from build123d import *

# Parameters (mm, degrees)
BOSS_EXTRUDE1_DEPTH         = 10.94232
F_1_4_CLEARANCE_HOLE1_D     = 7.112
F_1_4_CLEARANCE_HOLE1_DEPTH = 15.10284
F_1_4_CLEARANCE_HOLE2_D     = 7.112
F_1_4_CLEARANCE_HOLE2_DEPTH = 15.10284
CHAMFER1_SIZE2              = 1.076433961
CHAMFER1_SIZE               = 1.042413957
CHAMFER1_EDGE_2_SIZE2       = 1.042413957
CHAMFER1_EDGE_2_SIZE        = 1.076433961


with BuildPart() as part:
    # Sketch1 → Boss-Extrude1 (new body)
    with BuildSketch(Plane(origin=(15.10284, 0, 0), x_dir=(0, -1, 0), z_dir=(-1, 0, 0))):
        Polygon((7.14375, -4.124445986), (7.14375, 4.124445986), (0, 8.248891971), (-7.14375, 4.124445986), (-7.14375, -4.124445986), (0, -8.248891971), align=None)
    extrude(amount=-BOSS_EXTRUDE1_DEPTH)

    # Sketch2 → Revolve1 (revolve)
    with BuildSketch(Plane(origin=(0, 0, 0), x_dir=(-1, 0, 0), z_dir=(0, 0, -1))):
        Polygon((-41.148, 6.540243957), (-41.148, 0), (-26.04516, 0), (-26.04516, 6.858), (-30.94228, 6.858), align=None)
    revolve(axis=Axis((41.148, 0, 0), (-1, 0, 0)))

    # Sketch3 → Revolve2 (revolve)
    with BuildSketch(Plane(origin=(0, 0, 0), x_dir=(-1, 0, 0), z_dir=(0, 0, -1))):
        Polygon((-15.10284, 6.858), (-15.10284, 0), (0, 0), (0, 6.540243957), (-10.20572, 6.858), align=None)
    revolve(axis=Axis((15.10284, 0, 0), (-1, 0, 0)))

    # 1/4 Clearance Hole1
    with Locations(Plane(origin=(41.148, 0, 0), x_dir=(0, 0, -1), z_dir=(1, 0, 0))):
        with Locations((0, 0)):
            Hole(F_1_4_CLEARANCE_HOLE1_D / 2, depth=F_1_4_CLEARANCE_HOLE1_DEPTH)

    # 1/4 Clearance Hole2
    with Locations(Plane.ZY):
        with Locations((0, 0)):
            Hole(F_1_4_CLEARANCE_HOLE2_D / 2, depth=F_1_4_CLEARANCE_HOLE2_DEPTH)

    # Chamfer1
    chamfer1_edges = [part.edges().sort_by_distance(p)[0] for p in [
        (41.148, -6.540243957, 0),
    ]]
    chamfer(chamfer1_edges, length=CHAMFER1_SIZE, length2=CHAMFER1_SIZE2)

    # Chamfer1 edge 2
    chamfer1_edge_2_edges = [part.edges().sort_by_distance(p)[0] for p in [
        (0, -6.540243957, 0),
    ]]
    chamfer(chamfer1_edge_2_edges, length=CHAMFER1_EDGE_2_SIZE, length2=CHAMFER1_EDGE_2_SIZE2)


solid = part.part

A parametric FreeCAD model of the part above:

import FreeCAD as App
import Part
import Sketcher
from FreeCAD import Vector
Q = App.Units.Quantity


def edges_at(feature, points):
    """Names of the edges that pass closest to the given points."""
    edges = feature.Shape.Edges
    near = lambda p: min(range(len(edges)), key=lambda i: edges[i].distToShape(Part.Vertex(*p))[0])
    return sorted({f"Edge{near(p) + 1}" for p in points})

doc = App.newDocument("Part")
params = doc.addObject("Spreadsheet::Sheet", "Params")
for row, (alias, value) in enumerate([
    ("pad1_length", "0.4308 in"),
    ("sketch2_height", "0.27 in"),
    ("revolution_angle", "360 deg"),
    ("sketch3_height", "0.27 in"),
    ("revolution2_angle", "360 deg"),
    ("sketch4_diameter", "0.28 in"),
    ("hole_diameter", "0.28 in"),
    ("hole_depth", "0.5946 in"),
    ("sketch5_diameter", "0.28 in"),
    ("hole2_diameter", "0.28 in"),
    ("hole2_depth", "0.5946 in"),
    ("chamfer_size", "1.042414 mm"),
    ("chamfer_size2", "1.076434 mm"),
    ("chamfer2_size", "1.076434 mm"),
    ("chamfer2_size2", "1.042414 mm"),
], start=1):
    params.set(f"A{row}", alias)
    params.set(f"B{row}", "=" + value)
    params.setAlias(f"B{row}", alias)

body = doc.addObject("PartDesign::Body", "Body")

# Sketch on YZ plane
sketch1 = doc.addObject("Sketcher::SketchObject", "Sketch")
body.addObject(sketch1)
sketch1.AttachmentSupport = (doc.YZ_Plane, [""])
sketch1.MapMode = "FlatFace"
sketch1.AttachmentOffset = App.Placement(Vector(0, 0, 0.5946 * 25.4), App.Rotation())
sketch1.addGeometry([
    Part.LineSegment(Vector(-7, -4, 0), Vector(-7, 4, 0)),  # 0
    Part.LineSegment(Vector(-7, 4, 0), Vector(0, 8, 0)),  # 1
    Part.LineSegment(Vector(0, 8, 0), Vector(7, 4, 0)),  # 2
    Part.LineSegment(Vector(7, 4, 0), Vector(7, -4, 0)),  # 3
    Part.LineSegment(Vector(7, -4, 0), Vector(0, -8, 0)),  # 4
    Part.LineSegment(Vector(0, -8, 0), Vector(-7, -4, 0)),  # 5
], False)
sketch1.addConstraint([
    Sketcher.Constraint("Coincident", 0, 2, 1, 1),
    Sketcher.Constraint("Coincident", 1, 2, 2, 1),
    Sketcher.Constraint("Coincident", 2, 2, 3, 1),
    Sketcher.Constraint("Coincident", 3, 2, 4, 1),
    Sketcher.Constraint("Coincident", 4, 2, 5, 1),
    Sketcher.Constraint("Coincident", 5, 2, 0, 1),
    Sketcher.Constraint("Vertical", 0),
    Sketcher.Constraint("Vertical", 3),
    Sketcher.Constraint("Symmetric", 0, 2, 3, 2, -1, 1),
    Sketcher.Constraint("Symmetric", 1, 2, 4, 2, -1, 1),
    Sketcher.Constraint("PointOnObject", 1, 2, -2),
    Sketcher.Constraint("Parallel", 2, 5),
    Sketcher.Constraint("Horizontal", 0, 2, 2, 2),
    Sketcher.Constraint("Angle", 1, Q("30 deg")),
    Sketcher.Constraint("DistanceX", 0, 2, -1, 1, Q("0.28125 in")),
    Sketcher.Constraint("DistanceY", 0, 1, 0, 2, 8.248892),
])
pad1 = doc.addObject("PartDesign::Pad", "Pad")
body.addObject(pad1)
pad1.Profile = sketch1
pad1.setExpression("Length", "Params.pad1_length")

# Sketch on XY plane
sketch2 = doc.addObject("Sketcher::SketchObject", "Sketch001")
body.addObject(sketch2)
sketch2.AttachmentSupport = (doc.XY_Plane, [""])
sketch2.MapMode = "FlatFace"
sketch2.addGeometry([
    Part.LineSegment(Vector(41.1, 6.5, 0), Vector(41.1, 0, 0)),  # 0
    Part.LineSegment(Vector(41.1, 0, 0), Vector(26, 0, 0)),  # 1
    Part.LineSegment(Vector(26, 0, 0), Vector(26, 6.9, 0)),  # 2
    Part.LineSegment(Vector(26, 6.9, 0), Vector(30.9, 6.9, 0)),  # 3
    Part.LineSegment(Vector(30.9, 6.9, 0), Vector(41.1, 6.5, 0)),  # 4
], False)
sketch2.addConstraint([
    Sketcher.Constraint("Coincident", 0, 2, 1, 1),
    Sketcher.Constraint("Coincident", 1, 2, 2, 1),
    Sketcher.Constraint("Coincident", 2, 2, 3, 1),
    Sketcher.Constraint("Coincident", 3, 2, 4, 1),
    Sketcher.Constraint("Coincident", 4, 2, 0, 1),
    Sketcher.Constraint("Vertical", 0),
    Sketcher.Constraint("Horizontal", 1),
    Sketcher.Constraint("Vertical", 2),
    Sketcher.Constraint("Horizontal", 3),
    Sketcher.Constraint("PointOnObject", 0, 2, -1),
    Sketcher.Constraint("DistanceY", 2, 1, 2, 2, Q("0.27 in")),
    Sketcher.Constraint("DistanceX", -1, 1, 0, 2, Q("1.62 in")),
    Sketcher.Constraint("DistanceX", 1, 2, 1, 1, Q("0.5946 in")),
    Sketcher.Constraint("DistanceX", 3, 1, 3, 2, Q("0.1928 in")),
    Sketcher.Constraint("DistanceY", 0, 2, 0, 1, 6.540244),
])
sketch2.setExpression("Constraints[10]", "Params.sketch2_height")
revolution = doc.addObject("PartDesign::Revolution", "Revolution")
body.addObject(revolution)
revolution.Profile = sketch2
revolution.ReferenceAxis = (sketch2, ["H_Axis"])
revolution.setExpression("Angle", "Params.revolution_angle")

# Sketch on XY plane
sketch3 = doc.addObject("Sketcher::SketchObject", "Sketch002")
body.addObject(sketch3)
sketch3.AttachmentSupport = (doc.XY_Plane, [""])
sketch3.MapMode = "FlatFace"
sketch3.addGeometry([
    Part.LineSegment(Vector(15.1, 6.9, 0), Vector(15.1, 0, 0)),  # 0
    Part.LineSegment(Vector(15.1, 0, 0), Vector(0, 0, 0)),  # 1
    Part.LineSegment(Vector(0, 0, 0), Vector(0, 6.5, 0)),  # 2
    Part.LineSegment(Vector(0, 6.5, 0), Vector(10.2, 6.9, 0)),  # 3
    Part.LineSegment(Vector(10.2, 6.9, 0), Vector(15.1, 6.9, 0)),  # 4
], False)
sketch3.addConstraint([
    Sketcher.Constraint("Coincident", 0, 2, 1, 1),
    Sketcher.Constraint("Coincident", 1, 2, 2, 1),
    Sketcher.Constraint("Coincident", 2, 2, 3, 1),
    Sketcher.Constraint("Coincident", 3, 2, 4, 1),
    Sketcher.Constraint("Coincident", 4, 2, 0, 1),
    Sketcher.Constraint("Vertical", 0),
    Sketcher.Constraint("Horizontal", 1),
    Sketcher.Constraint("Vertical", 2),
    Sketcher.Constraint("Horizontal", 4),
    Sketcher.Constraint("Coincident", 1, 2, -1, 1),
    Sketcher.Constraint("DistanceY", 0, 2, 0, 1, Q("0.27 in")),
    Sketcher.Constraint("DistanceX", 1, 2, 1, 1, Q("0.5946 in")),
    Sketcher.Constraint("DistanceX", 4, 1, 4, 2, Q("0.1928 in")),
    Sketcher.Constraint("DistanceY", 2, 1, 2, 2, 6.540244),
])
sketch3.setExpression("Constraints[10]", "Params.sketch3_height")
revolution2 = doc.addObject("PartDesign::Revolution", "Revolution001")
body.addObject(revolution2)
revolution2.Profile = sketch3
revolution2.ReferenceAxis = (sketch3, ["H_Axis"])
revolution2.setExpression("Angle", "Params.revolution2_angle")

# Sketch on YZ plane
sketch4 = doc.addObject("Sketcher::SketchObject", "Sketch003")
body.addObject(sketch4)
sketch4.AttachmentSupport = (doc.YZ_Plane, [""])
sketch4.MapMode = "FlatFace"
sketch4.AttachmentOffset = App.Placement(Vector(0, 0, 1.62 * 25.4), App.Rotation())
sketch4.addGeometry(Part.Circle(Vector(0, 0, 0), Vector(0, 0, 1), 3.6), False)
sketch4.addConstraint([
    Sketcher.Constraint("Coincident", 0, 3, -1, 1),
    Sketcher.Constraint("Diameter", 0, Q("0.28 in")),
])
sketch4.setExpression("Constraints[1]", "Params.sketch4_diameter")
doc.recompute()
hole = doc.addObject("PartDesign::Hole", "Hole")
body.addObject(hole)
hole.Profile = sketch4
hole.ThreadType = "None"
hole.setExpression("Diameter", "Params.hole_diameter")
hole.DepthType = "Dimension"
hole.setExpression("Depth", "Params.hole_depth")
hole.DrillPoint = "Flat"

# Sketch on YZ plane
sketch5 = doc.addObject("Sketcher::SketchObject", "Sketch004")
body.addObject(sketch5)
sketch5.AttachmentSupport = (doc.YZ_Plane, [""])
sketch5.MapMode = "FlatFace"
sketch5.addGeometry(Part.Circle(Vector(0, 0, 0), Vector(0, 0, 1), 3.6), False)
sketch5.addConstraint([
    Sketcher.Constraint("Coincident", 0, 3, -1, 1),
    Sketcher.Constraint("Diameter", 0, Q("0.28 in")),
])
sketch5.setExpression("Constraints[1]", "Params.sketch5_diameter")
doc.recompute()
hole2 = doc.addObject("PartDesign::Hole", "Hole001")
body.addObject(hole2)
hole2.Profile = sketch5
hole2.ThreadType = "None"
hole2.setExpression("Diameter", "Params.hole2_diameter")
hole2.DepthType = "Dimension"
hole2.setExpression("Depth", "Params.hole2_depth")
hole2.DrillPoint = "Flat"
hole2.Reversed = True
doc.recompute()

chamfer = doc.addObject("PartDesign::Chamfer", "Chamfer")
body.addObject(chamfer)
chamfer.Base = (hole2, edges_at(hole2, [(41.148, -6.54, 0)]))
chamfer.ChamferType = "Two distances"
chamfer.setExpression("Size", "Params.chamfer_size")
chamfer.setExpression("Size2", "Params.chamfer_size2")
doc.recompute()

chamfer2 = doc.addObject("PartDesign::Chamfer", "Chamfer001")
body.addObject(chamfer2)
chamfer2.Base = (chamfer, edges_at(chamfer, [(0, -6.54, 0)]))
chamfer2.ChamferType = "Two distances"
chamfer2.setExpression("Size", "Params.chamfer2_size")
chamfer2.setExpression("Size2", "Params.chamfer2_size2")

doc.recompute()
